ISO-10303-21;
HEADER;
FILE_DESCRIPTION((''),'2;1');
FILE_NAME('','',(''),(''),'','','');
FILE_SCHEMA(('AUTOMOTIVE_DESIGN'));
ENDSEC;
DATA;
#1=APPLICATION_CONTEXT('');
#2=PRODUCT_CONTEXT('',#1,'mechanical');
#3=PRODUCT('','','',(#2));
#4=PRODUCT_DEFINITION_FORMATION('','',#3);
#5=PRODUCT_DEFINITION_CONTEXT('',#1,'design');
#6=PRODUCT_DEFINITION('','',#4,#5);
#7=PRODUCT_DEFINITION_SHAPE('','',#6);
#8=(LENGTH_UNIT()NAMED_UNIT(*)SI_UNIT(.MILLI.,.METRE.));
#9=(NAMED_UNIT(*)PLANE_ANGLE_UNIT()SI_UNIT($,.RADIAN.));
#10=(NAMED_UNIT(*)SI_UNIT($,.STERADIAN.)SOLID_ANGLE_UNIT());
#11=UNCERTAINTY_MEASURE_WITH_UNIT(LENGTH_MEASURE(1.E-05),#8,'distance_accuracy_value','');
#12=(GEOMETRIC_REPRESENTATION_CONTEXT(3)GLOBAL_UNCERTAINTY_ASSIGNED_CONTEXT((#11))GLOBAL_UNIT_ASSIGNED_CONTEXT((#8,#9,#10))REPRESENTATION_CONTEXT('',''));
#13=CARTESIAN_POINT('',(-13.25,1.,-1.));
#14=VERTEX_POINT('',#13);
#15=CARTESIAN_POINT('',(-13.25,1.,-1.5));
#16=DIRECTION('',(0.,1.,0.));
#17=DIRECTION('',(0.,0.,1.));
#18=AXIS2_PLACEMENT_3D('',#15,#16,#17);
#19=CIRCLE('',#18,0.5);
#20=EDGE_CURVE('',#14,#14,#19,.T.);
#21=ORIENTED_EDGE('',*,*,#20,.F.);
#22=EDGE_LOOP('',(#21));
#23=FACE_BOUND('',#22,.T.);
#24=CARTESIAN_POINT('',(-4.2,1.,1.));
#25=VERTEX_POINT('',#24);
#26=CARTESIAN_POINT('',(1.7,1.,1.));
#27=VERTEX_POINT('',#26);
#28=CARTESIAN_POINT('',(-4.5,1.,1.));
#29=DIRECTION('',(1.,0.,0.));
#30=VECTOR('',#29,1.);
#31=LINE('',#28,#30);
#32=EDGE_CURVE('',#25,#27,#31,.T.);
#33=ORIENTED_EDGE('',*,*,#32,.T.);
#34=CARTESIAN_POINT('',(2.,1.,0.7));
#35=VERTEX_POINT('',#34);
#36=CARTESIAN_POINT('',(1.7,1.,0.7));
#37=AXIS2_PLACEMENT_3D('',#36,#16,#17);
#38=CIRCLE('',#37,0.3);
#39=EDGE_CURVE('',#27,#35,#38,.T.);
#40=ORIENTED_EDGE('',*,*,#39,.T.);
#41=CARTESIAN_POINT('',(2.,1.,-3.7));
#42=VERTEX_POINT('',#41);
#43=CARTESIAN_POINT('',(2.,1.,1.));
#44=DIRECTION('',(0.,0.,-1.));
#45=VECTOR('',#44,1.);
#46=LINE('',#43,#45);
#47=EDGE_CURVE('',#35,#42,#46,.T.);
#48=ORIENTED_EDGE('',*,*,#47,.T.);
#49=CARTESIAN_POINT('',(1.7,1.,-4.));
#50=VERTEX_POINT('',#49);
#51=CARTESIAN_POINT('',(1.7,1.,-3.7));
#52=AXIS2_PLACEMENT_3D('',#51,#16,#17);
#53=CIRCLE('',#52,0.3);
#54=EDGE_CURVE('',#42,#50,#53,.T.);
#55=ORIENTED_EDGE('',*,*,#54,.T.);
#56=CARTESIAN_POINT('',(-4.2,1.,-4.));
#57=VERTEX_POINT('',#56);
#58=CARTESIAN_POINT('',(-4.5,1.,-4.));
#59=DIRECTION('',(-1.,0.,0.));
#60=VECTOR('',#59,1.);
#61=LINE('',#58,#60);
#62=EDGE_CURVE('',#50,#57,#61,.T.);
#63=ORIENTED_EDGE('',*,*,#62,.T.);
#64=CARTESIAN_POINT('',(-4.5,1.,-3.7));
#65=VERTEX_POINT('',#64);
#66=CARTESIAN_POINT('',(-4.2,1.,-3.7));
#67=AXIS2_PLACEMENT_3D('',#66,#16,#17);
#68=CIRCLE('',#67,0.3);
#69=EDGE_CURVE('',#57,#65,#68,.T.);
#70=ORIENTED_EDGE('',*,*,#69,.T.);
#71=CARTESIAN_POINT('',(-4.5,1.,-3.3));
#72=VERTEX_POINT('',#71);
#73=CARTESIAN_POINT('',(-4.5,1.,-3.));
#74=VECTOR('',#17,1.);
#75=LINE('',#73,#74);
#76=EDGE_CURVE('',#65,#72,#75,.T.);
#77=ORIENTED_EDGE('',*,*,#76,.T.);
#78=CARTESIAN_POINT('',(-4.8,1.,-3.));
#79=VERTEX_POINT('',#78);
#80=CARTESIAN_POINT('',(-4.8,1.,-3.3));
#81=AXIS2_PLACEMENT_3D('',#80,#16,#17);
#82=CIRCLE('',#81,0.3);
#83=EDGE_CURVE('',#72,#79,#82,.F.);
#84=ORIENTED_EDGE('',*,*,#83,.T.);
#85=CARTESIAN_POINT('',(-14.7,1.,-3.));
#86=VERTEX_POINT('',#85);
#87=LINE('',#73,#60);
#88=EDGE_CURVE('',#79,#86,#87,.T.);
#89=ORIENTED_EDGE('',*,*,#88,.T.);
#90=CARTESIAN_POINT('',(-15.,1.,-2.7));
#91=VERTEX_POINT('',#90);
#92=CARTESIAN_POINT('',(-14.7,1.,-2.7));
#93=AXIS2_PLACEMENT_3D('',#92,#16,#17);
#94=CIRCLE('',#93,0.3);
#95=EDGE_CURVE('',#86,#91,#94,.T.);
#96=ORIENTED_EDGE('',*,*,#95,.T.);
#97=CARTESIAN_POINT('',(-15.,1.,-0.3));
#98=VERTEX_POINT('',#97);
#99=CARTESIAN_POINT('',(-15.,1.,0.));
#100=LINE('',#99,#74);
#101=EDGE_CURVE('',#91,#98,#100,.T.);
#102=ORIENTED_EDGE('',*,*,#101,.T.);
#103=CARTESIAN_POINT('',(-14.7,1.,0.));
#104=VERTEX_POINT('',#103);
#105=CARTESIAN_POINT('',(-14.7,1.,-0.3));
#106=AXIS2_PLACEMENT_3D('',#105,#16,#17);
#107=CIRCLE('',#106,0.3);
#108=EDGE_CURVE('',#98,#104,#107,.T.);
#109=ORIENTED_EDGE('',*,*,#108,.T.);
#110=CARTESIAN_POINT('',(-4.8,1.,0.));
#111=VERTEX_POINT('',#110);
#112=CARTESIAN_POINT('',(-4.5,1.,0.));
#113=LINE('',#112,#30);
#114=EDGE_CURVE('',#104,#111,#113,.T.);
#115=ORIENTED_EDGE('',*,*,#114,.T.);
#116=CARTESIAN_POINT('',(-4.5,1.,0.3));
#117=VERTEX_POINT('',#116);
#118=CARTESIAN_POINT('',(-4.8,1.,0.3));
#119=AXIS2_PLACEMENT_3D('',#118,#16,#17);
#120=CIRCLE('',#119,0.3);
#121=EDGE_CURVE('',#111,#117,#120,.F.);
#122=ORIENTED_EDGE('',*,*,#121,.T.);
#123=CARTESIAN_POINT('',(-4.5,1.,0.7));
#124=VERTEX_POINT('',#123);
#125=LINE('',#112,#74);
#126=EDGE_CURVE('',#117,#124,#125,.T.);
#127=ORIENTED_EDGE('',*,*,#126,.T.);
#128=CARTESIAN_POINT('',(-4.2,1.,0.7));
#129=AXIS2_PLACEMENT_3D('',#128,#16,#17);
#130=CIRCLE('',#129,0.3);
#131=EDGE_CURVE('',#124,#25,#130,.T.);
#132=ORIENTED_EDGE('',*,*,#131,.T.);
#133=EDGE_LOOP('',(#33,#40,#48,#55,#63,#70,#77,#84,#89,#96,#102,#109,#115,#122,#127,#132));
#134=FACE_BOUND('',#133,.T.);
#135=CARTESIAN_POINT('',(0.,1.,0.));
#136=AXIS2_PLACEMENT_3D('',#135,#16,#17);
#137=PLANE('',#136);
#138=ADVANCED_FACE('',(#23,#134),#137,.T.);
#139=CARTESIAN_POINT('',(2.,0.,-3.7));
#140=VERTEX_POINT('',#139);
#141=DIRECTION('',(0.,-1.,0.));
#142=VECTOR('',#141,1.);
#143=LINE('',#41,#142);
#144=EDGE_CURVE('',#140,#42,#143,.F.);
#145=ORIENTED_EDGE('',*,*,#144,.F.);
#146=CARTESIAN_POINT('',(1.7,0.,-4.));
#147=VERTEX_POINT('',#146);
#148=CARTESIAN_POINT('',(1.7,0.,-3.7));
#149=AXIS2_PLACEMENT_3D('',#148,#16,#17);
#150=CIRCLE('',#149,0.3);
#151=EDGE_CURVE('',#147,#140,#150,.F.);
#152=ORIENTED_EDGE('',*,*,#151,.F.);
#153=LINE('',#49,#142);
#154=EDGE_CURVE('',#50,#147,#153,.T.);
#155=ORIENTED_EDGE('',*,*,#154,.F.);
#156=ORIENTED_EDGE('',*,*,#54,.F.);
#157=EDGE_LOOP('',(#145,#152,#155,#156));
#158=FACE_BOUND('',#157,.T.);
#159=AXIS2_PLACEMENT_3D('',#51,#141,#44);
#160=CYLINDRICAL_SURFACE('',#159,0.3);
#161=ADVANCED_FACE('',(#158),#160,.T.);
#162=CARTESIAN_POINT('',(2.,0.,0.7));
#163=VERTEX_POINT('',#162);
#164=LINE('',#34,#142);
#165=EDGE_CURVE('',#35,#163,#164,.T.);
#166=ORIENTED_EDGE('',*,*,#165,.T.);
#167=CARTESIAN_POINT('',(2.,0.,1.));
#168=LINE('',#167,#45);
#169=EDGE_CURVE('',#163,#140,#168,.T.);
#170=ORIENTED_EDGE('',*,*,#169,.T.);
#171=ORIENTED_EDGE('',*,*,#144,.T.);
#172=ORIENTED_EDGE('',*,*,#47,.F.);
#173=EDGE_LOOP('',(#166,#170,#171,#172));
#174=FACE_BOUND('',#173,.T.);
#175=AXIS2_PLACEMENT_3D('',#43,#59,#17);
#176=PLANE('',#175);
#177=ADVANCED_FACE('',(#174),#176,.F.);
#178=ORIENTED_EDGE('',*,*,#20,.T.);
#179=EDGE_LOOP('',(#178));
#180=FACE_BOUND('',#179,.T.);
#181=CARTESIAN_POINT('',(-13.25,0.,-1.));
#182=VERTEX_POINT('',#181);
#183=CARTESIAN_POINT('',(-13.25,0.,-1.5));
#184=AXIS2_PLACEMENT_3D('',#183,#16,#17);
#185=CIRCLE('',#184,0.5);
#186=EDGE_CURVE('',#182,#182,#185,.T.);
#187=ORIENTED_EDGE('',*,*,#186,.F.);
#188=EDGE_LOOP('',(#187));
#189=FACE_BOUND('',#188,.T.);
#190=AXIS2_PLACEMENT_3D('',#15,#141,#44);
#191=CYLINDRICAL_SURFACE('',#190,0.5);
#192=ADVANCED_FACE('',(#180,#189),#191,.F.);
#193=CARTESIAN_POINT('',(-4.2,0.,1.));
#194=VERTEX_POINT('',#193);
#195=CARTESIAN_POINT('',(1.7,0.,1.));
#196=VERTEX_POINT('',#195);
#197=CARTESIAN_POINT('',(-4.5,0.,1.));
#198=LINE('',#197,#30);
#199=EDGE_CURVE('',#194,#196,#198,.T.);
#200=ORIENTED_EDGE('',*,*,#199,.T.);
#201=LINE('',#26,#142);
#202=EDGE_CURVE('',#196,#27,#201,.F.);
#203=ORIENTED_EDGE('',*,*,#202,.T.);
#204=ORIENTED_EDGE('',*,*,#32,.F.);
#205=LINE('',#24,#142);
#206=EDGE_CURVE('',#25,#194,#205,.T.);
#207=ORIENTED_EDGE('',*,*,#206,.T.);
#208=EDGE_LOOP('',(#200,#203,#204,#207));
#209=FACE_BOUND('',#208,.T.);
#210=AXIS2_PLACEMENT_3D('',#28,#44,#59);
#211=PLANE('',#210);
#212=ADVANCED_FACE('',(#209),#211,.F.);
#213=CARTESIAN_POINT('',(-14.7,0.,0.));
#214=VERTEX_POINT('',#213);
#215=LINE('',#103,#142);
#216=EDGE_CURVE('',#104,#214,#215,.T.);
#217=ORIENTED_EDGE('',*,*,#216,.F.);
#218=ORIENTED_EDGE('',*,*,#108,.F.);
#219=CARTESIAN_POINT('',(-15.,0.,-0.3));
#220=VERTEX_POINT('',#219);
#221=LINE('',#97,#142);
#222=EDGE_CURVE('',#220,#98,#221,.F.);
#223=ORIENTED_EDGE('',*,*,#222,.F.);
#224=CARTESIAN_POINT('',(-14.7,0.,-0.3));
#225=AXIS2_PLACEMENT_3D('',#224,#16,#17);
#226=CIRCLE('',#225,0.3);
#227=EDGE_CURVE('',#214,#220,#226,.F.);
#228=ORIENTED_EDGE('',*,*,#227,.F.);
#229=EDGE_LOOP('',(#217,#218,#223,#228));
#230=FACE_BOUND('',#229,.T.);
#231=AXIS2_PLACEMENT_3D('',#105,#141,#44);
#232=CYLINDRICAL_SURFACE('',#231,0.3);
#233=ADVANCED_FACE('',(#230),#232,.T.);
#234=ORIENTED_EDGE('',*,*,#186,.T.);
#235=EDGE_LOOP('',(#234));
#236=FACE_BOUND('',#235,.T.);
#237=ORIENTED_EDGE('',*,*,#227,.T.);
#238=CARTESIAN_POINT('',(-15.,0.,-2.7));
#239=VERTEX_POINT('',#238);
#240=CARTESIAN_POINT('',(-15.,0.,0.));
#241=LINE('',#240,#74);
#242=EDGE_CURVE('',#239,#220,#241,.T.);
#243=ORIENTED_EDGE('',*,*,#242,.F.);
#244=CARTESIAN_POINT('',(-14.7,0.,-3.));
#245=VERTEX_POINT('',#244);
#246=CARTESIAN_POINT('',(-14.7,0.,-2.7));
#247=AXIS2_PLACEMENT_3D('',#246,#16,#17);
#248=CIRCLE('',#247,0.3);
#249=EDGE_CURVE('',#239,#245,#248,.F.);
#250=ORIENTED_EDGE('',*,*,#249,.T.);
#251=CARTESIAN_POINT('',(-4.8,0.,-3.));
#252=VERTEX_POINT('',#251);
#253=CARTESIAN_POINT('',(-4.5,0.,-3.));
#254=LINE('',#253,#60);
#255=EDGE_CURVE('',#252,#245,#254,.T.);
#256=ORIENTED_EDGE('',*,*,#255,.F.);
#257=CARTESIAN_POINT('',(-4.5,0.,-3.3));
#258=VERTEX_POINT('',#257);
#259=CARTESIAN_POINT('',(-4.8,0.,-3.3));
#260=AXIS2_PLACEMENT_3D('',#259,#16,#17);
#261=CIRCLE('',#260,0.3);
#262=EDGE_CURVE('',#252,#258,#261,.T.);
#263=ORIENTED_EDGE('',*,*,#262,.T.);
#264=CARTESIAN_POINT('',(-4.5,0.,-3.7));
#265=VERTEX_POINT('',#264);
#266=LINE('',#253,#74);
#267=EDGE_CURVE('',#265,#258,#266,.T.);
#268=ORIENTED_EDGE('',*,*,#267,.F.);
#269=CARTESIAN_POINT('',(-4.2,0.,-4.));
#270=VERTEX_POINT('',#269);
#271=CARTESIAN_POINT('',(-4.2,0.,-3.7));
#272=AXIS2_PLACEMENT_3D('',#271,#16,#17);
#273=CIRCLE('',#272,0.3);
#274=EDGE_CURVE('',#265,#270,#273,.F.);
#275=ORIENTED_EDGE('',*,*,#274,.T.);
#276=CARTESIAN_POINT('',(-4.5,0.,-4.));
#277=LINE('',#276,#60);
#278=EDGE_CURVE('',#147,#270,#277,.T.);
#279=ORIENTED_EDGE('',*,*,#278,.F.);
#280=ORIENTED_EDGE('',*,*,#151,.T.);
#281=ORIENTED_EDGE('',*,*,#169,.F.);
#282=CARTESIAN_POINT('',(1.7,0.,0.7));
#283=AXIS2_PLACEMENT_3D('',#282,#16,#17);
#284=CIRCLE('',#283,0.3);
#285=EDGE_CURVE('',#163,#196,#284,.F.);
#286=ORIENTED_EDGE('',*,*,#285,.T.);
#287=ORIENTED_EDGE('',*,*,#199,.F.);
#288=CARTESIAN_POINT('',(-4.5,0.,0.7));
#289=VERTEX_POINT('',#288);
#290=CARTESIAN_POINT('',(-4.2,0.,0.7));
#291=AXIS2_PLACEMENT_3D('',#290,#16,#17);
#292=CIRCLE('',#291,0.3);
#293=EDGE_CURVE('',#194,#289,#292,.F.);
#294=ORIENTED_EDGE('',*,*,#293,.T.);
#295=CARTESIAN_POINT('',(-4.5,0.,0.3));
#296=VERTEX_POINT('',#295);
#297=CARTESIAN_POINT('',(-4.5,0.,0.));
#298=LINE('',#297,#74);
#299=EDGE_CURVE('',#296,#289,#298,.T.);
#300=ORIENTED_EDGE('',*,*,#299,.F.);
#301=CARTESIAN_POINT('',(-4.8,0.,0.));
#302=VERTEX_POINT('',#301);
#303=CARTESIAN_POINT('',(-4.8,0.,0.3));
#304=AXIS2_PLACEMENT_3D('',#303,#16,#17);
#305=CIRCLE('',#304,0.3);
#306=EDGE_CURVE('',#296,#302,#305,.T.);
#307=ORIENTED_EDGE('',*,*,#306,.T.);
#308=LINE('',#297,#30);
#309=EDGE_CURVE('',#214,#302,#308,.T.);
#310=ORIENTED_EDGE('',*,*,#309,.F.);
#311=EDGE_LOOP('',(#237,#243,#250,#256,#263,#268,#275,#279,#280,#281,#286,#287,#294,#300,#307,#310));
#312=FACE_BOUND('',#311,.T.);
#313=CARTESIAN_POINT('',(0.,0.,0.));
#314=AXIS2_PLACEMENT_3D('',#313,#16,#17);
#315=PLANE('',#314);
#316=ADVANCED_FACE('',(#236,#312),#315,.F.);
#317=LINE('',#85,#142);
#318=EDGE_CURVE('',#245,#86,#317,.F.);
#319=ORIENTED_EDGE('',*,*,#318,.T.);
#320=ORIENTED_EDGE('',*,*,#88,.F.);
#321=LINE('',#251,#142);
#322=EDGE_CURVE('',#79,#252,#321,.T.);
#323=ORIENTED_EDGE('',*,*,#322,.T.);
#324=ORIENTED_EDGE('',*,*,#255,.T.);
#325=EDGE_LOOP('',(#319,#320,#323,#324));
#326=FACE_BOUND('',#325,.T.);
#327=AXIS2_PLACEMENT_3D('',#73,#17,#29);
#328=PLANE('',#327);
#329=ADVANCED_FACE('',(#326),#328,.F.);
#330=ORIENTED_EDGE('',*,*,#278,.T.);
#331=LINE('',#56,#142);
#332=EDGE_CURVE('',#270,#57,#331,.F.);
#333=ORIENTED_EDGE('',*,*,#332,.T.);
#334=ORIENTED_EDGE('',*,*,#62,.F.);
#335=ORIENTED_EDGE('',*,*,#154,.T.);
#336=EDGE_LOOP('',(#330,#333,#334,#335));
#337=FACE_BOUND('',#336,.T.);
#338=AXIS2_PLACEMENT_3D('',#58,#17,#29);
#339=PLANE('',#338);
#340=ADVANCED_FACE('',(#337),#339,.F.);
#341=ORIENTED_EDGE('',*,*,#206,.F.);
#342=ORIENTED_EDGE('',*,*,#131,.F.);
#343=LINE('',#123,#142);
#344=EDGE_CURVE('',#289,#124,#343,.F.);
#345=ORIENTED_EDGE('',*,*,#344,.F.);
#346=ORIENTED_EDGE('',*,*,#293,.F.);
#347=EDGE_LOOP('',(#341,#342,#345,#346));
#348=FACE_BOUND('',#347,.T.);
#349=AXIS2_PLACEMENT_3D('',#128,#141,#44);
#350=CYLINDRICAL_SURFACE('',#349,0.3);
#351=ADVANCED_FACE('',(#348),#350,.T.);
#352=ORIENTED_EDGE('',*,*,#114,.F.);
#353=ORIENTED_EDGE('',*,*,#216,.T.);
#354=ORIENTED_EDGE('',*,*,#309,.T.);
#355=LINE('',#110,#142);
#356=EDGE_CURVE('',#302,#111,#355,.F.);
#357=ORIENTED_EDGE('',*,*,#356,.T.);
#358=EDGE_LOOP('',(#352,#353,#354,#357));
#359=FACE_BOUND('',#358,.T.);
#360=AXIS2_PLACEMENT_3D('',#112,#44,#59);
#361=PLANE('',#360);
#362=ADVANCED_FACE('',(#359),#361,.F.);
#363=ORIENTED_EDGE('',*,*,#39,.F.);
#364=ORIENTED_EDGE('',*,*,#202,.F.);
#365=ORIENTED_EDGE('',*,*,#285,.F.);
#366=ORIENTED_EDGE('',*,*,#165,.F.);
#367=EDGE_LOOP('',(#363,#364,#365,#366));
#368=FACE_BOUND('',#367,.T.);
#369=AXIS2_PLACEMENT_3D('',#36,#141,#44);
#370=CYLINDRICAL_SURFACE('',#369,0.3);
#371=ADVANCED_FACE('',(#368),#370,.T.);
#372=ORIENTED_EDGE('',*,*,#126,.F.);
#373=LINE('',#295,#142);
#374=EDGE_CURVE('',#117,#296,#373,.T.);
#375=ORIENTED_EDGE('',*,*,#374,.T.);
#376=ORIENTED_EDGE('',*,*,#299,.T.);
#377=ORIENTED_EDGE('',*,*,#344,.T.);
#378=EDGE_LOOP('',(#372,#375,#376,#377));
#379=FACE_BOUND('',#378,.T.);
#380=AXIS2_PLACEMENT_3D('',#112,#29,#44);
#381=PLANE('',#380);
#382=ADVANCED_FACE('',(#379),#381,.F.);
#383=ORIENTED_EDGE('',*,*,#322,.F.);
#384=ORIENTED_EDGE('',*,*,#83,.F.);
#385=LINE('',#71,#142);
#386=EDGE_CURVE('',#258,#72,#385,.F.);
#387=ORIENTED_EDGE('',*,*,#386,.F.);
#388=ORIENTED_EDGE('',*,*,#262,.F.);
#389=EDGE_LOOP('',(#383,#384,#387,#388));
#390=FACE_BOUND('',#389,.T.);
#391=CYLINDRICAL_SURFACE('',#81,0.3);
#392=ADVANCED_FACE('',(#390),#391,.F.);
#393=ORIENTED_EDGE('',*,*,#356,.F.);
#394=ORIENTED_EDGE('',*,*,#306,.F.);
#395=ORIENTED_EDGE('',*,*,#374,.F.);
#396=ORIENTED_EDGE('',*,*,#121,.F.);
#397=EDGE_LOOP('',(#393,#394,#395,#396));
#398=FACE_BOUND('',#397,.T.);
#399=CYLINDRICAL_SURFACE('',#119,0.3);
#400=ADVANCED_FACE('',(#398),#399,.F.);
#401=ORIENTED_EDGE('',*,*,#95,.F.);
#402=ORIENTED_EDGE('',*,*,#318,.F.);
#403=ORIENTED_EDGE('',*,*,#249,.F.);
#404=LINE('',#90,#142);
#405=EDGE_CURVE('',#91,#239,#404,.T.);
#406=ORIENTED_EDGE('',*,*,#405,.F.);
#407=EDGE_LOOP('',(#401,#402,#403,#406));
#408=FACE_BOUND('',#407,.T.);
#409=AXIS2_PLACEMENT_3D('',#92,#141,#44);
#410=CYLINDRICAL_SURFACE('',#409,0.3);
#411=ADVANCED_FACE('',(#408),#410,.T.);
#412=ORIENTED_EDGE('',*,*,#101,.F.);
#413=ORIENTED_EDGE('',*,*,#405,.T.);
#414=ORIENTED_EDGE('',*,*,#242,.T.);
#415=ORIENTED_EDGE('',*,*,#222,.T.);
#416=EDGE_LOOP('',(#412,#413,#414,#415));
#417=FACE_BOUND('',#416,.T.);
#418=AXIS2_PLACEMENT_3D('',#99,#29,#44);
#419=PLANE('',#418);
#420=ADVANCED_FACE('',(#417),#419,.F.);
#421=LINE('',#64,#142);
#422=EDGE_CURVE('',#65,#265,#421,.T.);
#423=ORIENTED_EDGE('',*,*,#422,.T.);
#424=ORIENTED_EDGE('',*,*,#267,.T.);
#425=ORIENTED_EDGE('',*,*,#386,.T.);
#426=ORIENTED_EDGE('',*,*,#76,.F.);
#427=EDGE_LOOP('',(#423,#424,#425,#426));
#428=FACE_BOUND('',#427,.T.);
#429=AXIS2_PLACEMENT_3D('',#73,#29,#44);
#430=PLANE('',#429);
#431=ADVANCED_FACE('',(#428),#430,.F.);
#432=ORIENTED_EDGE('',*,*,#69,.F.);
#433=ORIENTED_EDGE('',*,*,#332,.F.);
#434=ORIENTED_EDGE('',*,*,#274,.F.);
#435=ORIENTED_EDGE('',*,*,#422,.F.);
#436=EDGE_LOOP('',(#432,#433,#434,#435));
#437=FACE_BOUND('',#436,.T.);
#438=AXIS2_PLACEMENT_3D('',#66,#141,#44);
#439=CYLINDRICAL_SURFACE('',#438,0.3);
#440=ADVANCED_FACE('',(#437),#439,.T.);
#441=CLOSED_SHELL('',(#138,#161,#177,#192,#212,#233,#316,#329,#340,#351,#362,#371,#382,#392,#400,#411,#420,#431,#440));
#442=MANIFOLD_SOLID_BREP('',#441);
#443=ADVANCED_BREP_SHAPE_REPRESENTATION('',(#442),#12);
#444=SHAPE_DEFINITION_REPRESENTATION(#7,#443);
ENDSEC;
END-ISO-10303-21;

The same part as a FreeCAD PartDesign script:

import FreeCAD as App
import Part
import Sketcher


def edges_at(feature, points):
    """Names of the edges that pass closest to the given points."""
    edges = feature.Shape.Edges
    near = lambda p: min(range(len(edges)), key=lambda i: edges[i].distToShape(Part.Vertex(*p))[0])
    return sorted({f"Edge{near(p) + 1}" for p in points})

doc = App.newDocument("Part")
params = doc.addObject("Spreadsheet::Sheet", "Params")
for row, (alias, value) in enumerate([
    ("sketch1_diameter", "1 mm"),
    ("sketch1_height", "1 mm"),
    ("sketch1_height2", "5 mm"),
    ("sketch1_width", "10.5 mm"),
    ("sketch1_width2", "6.5 mm"),
    ("pad1_length", "1 mm"),
    ("fillet_radius", "0.3 mm"),
], start=1):
    params.set(f"A{row}", alias)
    params.set(f"B{row}", "=" + value)
    params.setAlias(f"B{row}", alias)

body = doc.addObject("PartDesign::Body", "Body")

# Sketch on XZ plane
sketch1 = body.newObject("Sketcher::SketchObject", "Sketch")
sketch1.AttachmentSupport = (doc.getObject("XZ_Plane"), [""])
sketch1.MapMode = "FlatFace"
sketch1.addGeometry([
    Part.LineSegment(App.Vector(-15, 0, 0), App.Vector(-4.5, 0, 0)),  # 0
    Part.LineSegment(App.Vector(-4.5, 0, 0), App.Vector(-4.5, 1, 0)),  # 1
    Part.LineSegment(App.Vector(-4.5, 1, 0), App.Vector(2, 1, 0)),  # 2
    Part.LineSegment(App.Vector(2, 1, 0), App.Vector(2, -4, 0)),  # 3
    Part.LineSegment(App.Vector(2, -4, 0), App.Vector(-4.5, -4, 0)),  # 4
    Part.LineSegment(App.Vector(-4.5, -4, 0), App.Vector(-4.5, -3, 0)),  # 5
    Part.LineSegment(App.Vector(-4.5, -3, 0), App.Vector(-15, -3, 0)),  # 6
    Part.LineSegment(App.Vector(-15, -3, 0), App.Vector(-15, 0, 0)),  # 7
    Part.Circle(App.Vector(-13.25, -1.5, 0), App.Vector(0, 0, 1), 0.5),  # 8
], False)
sketch1.addConstraint([
    Sketcher.Constraint("Coincident", 0, 2, 1, 1),
    Sketcher.Constraint("Coincident", 1, 2, 2, 1),
    Sketcher.Constraint("Coincident", 2, 2, 3, 1),
    Sketcher.Constraint("Coincident", 3, 2, 4, 1),
    Sketcher.Constraint("Coincident", 4, 2, 5, 1),
    Sketcher.Constraint("Coincident", 5, 2, 6, 1),
    Sketcher.Constraint("Coincident", 6, 2, 7, 1),
    Sketcher.Constraint("Coincident", 7, 2, 0, 1),
    Sketcher.Constraint("Horizontal", 0),
    Sketcher.Constraint("Vertical", 1),
    Sketcher.Constraint("Horizontal", 2),
    Sketcher.Constraint("Vertical", 3),
    Sketcher.Constraint("Horizontal", 4),
    Sketcher.Constraint("Vertical", 5),
    Sketcher.Constraint("Horizontal", 6),
    Sketcher.Constraint("Vertical", 7),
    Sketcher.Constraint("PointOnObject", 0, 2, -1),
    Sketcher.Constraint("Vertical", 1, 2, 4, 2),
    Sketcher.Constraint("Equal", 1, 5),
    Sketcher.Constraint("Diameter", 8, 1.0),
    Sketcher.Constraint("DistanceY", 1, 1, 1, 2, 1.0),
    Sketcher.Constraint("DistanceY", 3, 2, 3, 1, 5.0),
    Sketcher.Constraint("DistanceX", 0, 1, 0, 2, 10.5),
    Sketcher.Constraint("DistanceX", 2, 1, 2, 2, 6.5),
    Sketcher.Constraint("DistanceX", -1, 1, 2, 2, 2.0),
    Sketcher.Constraint("DistanceY", 8, 3, -1, 1, 1.5),
    Sketcher.Constraint("DistanceX", 8, 3, -1, 1, 13.25),
])
sketch1.setExpression("Constraints[19]", "Params.sketch1_diameter")
sketch1.setExpression("Constraints[20]", "Params.sketch1_height")
sketch1.setExpression("Constraints[21]", "Params.sketch1_height2")
sketch1.setExpression("Constraints[22]", "Params.sketch1_width")
sketch1.setExpression("Constraints[23]", "Params.sketch1_width2")
pad1 = body.newObject("PartDesign::Pad", "Pad")
pad1.Profile = sketch1
pad1.setExpression("Length", "Params.pad1_length")
pad1.Reversed = True
doc.recompute()

fillet = body.newObject("PartDesign::Fillet", "Fillet")
fillet.Base = (pad1, edges_at(pad1, [
    (-15, 0.5, -3),
    (-4.5, 0.5, -3),
    (-4.5, 0.5, -4),
    (2, 0.5, -4),
    (2, 0.5, 1),
    (-4.5, 0.5, 1),
    (-4.5, 0.5, 0),
    (-15, 0.5, 0),
]))
fillet.setExpression("Radius", "Params.fillet_radius")

doc.recompute()
